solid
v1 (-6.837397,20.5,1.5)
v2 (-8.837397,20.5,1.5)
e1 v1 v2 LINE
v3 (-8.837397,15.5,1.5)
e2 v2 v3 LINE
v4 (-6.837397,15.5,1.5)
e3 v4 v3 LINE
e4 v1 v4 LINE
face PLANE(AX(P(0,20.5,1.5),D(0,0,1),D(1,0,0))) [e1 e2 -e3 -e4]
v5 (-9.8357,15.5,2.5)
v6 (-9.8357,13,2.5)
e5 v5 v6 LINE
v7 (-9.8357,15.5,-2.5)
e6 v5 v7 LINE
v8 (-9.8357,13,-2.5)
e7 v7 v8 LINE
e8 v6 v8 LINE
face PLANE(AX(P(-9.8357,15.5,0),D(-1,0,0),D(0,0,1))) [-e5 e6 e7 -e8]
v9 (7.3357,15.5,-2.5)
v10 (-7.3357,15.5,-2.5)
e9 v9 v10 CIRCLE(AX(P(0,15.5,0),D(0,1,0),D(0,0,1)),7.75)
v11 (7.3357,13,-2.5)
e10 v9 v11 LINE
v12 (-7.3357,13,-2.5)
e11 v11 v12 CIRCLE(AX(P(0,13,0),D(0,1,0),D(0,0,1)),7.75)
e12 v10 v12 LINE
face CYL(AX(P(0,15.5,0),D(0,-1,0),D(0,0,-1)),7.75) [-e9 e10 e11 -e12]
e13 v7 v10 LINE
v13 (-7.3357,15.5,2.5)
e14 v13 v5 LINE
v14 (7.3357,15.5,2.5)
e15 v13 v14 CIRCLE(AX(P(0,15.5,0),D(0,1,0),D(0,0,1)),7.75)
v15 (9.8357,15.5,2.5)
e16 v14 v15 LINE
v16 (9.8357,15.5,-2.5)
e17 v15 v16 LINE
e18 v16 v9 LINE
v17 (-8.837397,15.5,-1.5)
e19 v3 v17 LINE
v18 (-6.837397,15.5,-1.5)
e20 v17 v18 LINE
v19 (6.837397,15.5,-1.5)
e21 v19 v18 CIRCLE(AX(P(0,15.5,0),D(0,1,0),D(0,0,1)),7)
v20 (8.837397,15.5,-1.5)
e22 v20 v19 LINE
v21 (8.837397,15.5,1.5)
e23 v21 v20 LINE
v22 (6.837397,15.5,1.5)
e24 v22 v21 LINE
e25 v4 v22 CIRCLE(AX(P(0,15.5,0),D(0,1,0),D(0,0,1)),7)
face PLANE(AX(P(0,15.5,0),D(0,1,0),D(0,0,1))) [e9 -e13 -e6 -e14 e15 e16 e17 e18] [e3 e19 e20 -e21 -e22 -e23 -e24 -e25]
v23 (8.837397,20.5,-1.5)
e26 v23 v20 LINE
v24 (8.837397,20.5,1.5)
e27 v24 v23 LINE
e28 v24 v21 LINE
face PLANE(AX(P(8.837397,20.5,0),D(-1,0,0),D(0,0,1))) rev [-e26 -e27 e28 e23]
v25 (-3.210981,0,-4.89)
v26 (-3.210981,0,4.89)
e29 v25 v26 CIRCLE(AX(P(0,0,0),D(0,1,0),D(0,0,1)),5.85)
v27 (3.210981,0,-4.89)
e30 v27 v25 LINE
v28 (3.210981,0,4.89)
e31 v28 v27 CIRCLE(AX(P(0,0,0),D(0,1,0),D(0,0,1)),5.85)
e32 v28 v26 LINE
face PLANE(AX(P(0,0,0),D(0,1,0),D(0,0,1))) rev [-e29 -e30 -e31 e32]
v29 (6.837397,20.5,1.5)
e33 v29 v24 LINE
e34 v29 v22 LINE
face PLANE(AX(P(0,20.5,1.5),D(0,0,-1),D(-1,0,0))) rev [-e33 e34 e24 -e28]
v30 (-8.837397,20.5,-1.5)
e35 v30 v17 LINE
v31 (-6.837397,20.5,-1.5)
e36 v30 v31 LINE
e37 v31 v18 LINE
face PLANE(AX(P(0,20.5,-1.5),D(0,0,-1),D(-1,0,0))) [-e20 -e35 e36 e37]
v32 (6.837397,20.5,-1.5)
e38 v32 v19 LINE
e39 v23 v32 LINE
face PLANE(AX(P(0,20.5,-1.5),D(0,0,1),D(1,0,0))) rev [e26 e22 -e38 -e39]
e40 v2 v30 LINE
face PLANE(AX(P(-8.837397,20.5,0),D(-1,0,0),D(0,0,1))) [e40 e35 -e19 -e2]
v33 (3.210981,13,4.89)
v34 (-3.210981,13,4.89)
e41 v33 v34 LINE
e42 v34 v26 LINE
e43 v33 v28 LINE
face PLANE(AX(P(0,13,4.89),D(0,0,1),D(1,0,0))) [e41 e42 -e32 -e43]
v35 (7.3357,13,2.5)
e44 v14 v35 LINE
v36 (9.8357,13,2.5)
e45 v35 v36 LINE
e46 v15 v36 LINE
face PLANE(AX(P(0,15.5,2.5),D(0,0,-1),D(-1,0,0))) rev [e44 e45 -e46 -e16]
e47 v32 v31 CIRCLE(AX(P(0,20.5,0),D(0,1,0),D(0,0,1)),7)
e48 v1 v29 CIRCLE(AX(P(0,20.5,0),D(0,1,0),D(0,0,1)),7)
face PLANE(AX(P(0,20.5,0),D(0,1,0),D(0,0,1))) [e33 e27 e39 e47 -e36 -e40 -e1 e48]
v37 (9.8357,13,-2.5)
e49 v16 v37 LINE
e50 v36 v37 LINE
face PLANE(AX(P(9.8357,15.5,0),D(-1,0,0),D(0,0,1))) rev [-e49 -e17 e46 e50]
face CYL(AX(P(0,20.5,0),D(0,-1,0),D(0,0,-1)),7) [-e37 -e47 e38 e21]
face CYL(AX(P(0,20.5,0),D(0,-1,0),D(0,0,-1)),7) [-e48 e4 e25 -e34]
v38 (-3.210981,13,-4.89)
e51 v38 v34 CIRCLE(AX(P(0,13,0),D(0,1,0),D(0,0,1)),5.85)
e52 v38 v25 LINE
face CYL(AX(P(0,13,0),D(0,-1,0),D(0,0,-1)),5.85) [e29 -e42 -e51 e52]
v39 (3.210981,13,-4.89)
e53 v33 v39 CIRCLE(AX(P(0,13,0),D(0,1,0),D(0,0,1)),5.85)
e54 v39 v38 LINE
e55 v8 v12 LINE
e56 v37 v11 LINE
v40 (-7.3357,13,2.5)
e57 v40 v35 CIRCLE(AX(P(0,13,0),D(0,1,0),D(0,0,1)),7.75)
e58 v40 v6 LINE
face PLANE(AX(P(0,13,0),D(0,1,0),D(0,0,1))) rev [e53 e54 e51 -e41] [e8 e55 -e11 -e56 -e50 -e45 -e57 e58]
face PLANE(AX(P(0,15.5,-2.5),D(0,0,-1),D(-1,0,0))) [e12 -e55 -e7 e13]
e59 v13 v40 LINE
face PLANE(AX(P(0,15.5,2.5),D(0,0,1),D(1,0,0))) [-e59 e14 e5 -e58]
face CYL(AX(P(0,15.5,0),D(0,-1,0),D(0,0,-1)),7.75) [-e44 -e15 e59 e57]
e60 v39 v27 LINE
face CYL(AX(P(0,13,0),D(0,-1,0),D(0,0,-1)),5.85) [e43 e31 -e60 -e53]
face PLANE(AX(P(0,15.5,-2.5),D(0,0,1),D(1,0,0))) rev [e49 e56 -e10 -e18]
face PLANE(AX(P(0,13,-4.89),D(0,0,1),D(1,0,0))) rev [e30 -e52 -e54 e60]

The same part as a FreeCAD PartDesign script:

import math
import FreeCAD as App
import Part
import Sketcher
from FreeCAD import Vector
Q = App.Units.Quantity

doc = App.newDocument("Part")
body = doc.addObject("PartDesign::Body", "Body")

sketch1 = body.newObject("Sketcher::SketchObject", "Sketch")
sketch1.AttachmentSupport = (doc.getObject("XZ_Plane"), [""])
sketch1.MapMode = "FlatFace"
sketch1.addGeometry(Part.ArcOfCircle(Part.Circle(Vector(0, 0, 0), Vector(0, 0, 1), 6), math.radians(-57), math.radians(0)), False)
sketch1.addGeometry(Part.LineSegment(Vector(3, -5, 0), Vector(-3, -5, 0)), False)
sketch1.addGeometry(Part.ArcOfCircle(Part.Circle(Vector(0, 0, 0), Vector(0, 0, 1), 6), math.radians(180), math.radians(237)), False)
sketch1.addGeometry(Part.ArcOfCircle(Part.Circle(Vector(0, 0, 0), Vector(0, 0, 1), 6), math.radians(123), math.radians(180)), False)
sketch1.addGeometry(Part.LineSegment(Vector(-3, 5, 0), Vector(3, 5, 0)), False)
sketch1.addGeometry(Part.ArcOfCircle(Part.Circle(Vector(0, 0, 0), Vector(0, 0, 1), 6), math.radians(0), math.radians(57)), False)
sketch1.addConstraint(Sketcher.Constraint("Coincident", 0, 1, 1, 1))
sketch1.addConstraint(Sketcher.Constraint("Coincident", 1, 2, 2, 2))
sketch1.addConstraint(Sketcher.Constraint("Tangent", 2, 1, 3, 2))
sketch1.addConstraint(Sketcher.Constraint("Coincident", 3, 1, 4, 1))
sketch1.addConstraint(Sketcher.Constraint("Coincident", 4, 2, 5, 2))
sketch1.addConstraint(Sketcher.Constraint("Tangent", 5, 1, 0, 2))
sketch1.addConstraint(Sketcher.Constraint("Horizontal", 1))
sketch1.addConstraint(Sketcher.Constraint("Horizontal", 4))
sketch1.addConstraint(Sketcher.Constraint("Coincident", 0, 3, -1, 1))
sketch1.addConstraint(Sketcher.Constraint("Coincident", 2, 3, -1, 1))
sketch1.addConstraint(Sketcher.Constraint("Equal", 0, 2))
sketch1.addConstraint(Sketcher.Constraint("Equal", 2, 3))
sketch1.addConstraint(Sketcher.Constraint("Equal", 3, 5))
sketch1.addConstraint(Sketcher.Constraint("PointOnObject", 2, 1, -1))
sketch1.addConstraint(Sketcher.Constraint("PointOnObject", 5, 1, -1))
sketch1.addConstraint(Sketcher.Constraint("Vertical", 1, 2, 3, 1))
sketch1.addConstraint(Sketcher.Constraint("Radius", 0, Q("5.85 mm")))
sketch1.addConstraint(Sketcher.Constraint("DistanceY", 0, 1, -1, 1, Q("4.89 mm")))
pad1 = body.newObject("PartDesign::Pad", "Pad")
pad1.Profile = sketch1
pad1.Length = 13
pad1.Reversed = True

sketch2 = body.newObject("Sketcher::SketchObject", "Sketch001")
sketch2.AttachmentSupport = (doc.getObject("XZ_Plane"), [""])
sketch2.MapMode = "FlatFace"
sketch2.AttachmentOffset = App.Placement(Vector(0, 0, -13), App.Rotation())
sketch2.addGeometry(Part.ArcOfCircle(Part.Circle(Vector(0, 0, 0), Vector(0, 0, 1), 7.8), math.radians(-161), math.radians(-90)), False)
sketch2.addGeometry(Part.LineSegment(Vector(-7.3, -2.5, 0), Vector(-9.8, -2.5, 0)), False)
sketch2.addGeometry(Part.LineSegment(Vector(-9.8, -2.5, 0), Vector(-9.8, 2.5, 0)), False)
sketch2.addGeometry(Part.LineSegment(Vector(-9.8, 2.5, 0), Vector(-7.3, 2.5, 0)), False)
sketch2.addGeometry(Part.ArcOfCircle(Part.Circle(Vector(0, 0, 0), Vector(0, 0, 1), 7.8), math.radians(90), math.radians(161)), False)
sketch2.addGeometry(Part.ArcOfCircle(Part.Circle(Vector(0, 0, 0), Vector(0, 0, 1), 7.8), math.radians(19), math.radians(90)), False)
sketch2.addGeometry(Part.LineSegment(Vector(7.3, 2.5, 0), Vector(9.8, 2.5, 0)), False)
sketch2.addGeometry(Part.LineSegment(Vector(9.8, 2.5, 0), Vector(9.8, -2.5, 0)), False)
sketch2.addGeometry(Part.LineSegment(Vector(9.8, -2.5, 0), Vector(7.3, -2.5, 0)), False)
sketch2.addGeometry(Part.ArcOfCircle(Part.Circle(Vector(0, 0, 0), Vector(0, 0, 1), 7.8), math.radians(-90), math.radians(-19)), False)
sketch2.addConstraint(Sketcher.Constraint("Coincident", 0, 1, 1, 1))
sketch2.addConstraint(Sketcher.Constraint("Coincident", 1, 2, 2, 1))
sketch2.addConstraint(Sketcher.Constraint("Coincident", 2, 2, 3, 1))
sketch2.addConstraint(Sketcher.Constraint("Coincident", 3, 2, 4, 2))
sketch2.addConstraint(Sketcher.Constraint("Tangent", 4, 1, 5, 2))
sketch2.addConstraint(Sketcher.Constraint("Coincident", 5, 1, 6, 1))
sketch2.addConstraint(Sketcher.Constraint("Coincident", 6, 2, 7, 1))
sketch2.addConstraint(Sketcher.Constraint("Coincident", 7, 2, 8, 1))
sketch2.addConstraint(Sketcher.Constraint("Coincident", 8, 2, 9, 2))
sketch2.addConstraint(Sketcher.Constraint("Tangent", 9, 1, 0, 2))
sketch2.addConstraint(Sketcher.Constraint("Horizontal", 1))
sketch2.addConstraint(Sketcher.Constraint("Vertical", 2))
sketch2.addConstraint(Sketcher.Constraint("Horizontal", 3))
sketch2.addConstraint(Sketcher.Constraint("Horizontal", 6))
sketch2.addConstraint(Sketcher.Constraint("Vertical", 7))
sketch2.addConstraint(Sketcher.Constraint("Horizontal", 8))
sketch2.addConstraint(Sketcher.Constraint("Coincident", 0, 3, -1, 1))
sketch2.addConstraint(Sketcher.Constraint("Coincident", 4, 3, -1, 1))
sketch2.addConstraint(Sketcher.Constraint("Equal", 0, 4))
sketch2.addConstraint(Sketcher.Constraint("Equal", 4, 5))
sketch2.addConstraint(Sketcher.Constraint("Equal", 5, 9))
sketch2.addConstraint(Sketcher.Constraint("Symmetric", 1, 2, 6, 2, -1, 1))
sketch2.addConstraint(Sketcher.Constraint("PointOnObject", 4, 1, -2))
sketch2.addConstraint(Sketcher.Constraint("PointOnObject", 9, 1, -2))
sketch2.addConstraint(Sketcher.Constraint("Horizontal", 3, 2, 5, 1))
sketch2.addConstraint(Sketcher.Constraint("Horizontal", 1, 2, 7, 2))
sketch2.addConstraint(Sketcher.Constraint("DistanceY", 2, 1, 2, 2, Q("5 mm")))
sketch2.addConstraint(Sketcher.Constraint("Radius", 0, Q("7.75 mm")))
sketch2.addConstraint(Sketcher.Constraint("DistanceX", 1, 2, 1, 1, Q("2.5 mm")))
pad2 = body.newObject("PartDesign::Pad", "Pad001")
pad2.Profile = sketch2
pad2.Length = 2.5
pad2.Reversed = True

sketch3 = body.newObject("Sketcher::SketchObject", "Sketch002")
sketch3.AttachmentSupport = (doc.getObject("XZ_Plane"), [""])
sketch3.MapMode = "FlatFace"
sketch3.AttachmentOffset = App.Placement(Vector(0, 0, -15.5), App.Rotation())
sketch3.addGeometry(Part.LineSegment(Vector(-6.8, -1.5, 0), Vector(-8.8, -1.5, 0)), False)
sketch3.addGeometry(Part.LineSegment(Vector(-8.8, -1.5, 0), Vector(-8.8, 1.5, 0)), False)
sketch3.addGeometry(Part.LineSegment(Vector(-8.8, 1.5, 0), Vector(-6.8, 1.5, 0)), False)
sketch3.addGeometry(Part.ArcOfCircle(Part.Circle(Vector(0, 0, 0), Vector(0, 0, 1), 7), math.radians(12), math.radians(168)), False)
sketch3.addGeometry(Part.LineSegment(Vector(6.8, 1.5, 0), Vector(8.8, 1.5, 0)), False)
sketch3.addGeometry(Part.LineSegment(Vector(8.8, 1.5, 0), Vector(8.8, -1.5, 0)), False)
sketch3.addGeometry(Part.LineSegment(Vector(8.8, -1.5, 0), Vector(6.8, -1.5, 0)), False)
sketch3.addGeometry(Part.ArcOfCircle(Part.Circle(Vector(0, 0, 0), Vector(0, 0, 1), 7), math.radians(-168), math.radians(-12)), False)
sketch3.addConstraint(Sketcher.Constraint("Coincident", 0, 2, 1, 1))
sketch3.addConstraint(Sketcher.Constraint("Coincident", 1, 2, 2, 1))
sketch3.addConstraint(Sketcher.Constraint("Coincident", 2, 2, 3, 2))
sketch3.addConstraint(Sketcher.Constraint("Coincident", 3, 1, 4, 1))
sketch3.addConstraint(Sketcher.Constraint("Coincident", 4, 2, 5, 1))
sketch3.addConstraint(Sketcher.Constraint("Coincident", 5, 2, 6, 1))
sketch3.addConstraint(Sketcher.Constraint("Coincident", 6, 2, 7, 2))
sketch3.addConstraint(Sketcher.Constraint("Coincident", 7, 1, 0, 1))
sketch3.addConstraint(Sketcher.Constraint("Horizontal", 0))
sketch3.addConstraint(Sketcher.Constraint("Vertical", 1))
sketch3.addConstraint(Sketcher.Constraint("Horizontal", 2))
sketch3.addConstraint(Sketcher.Constraint("Horizontal", 4))
sketch3.addConstraint(Sketcher.Constraint("Vertical", 5))
sketch3.addConstraint(Sketcher.Constraint("Horizontal", 6))
sketch3.addConstraint(Sketcher.Constraint("Coincident", 3, 3, -1, 1))
sketch3.addConstraint(Sketcher.Constraint("Coincident", 7, 3, -1, 1))
sketch3.addConstraint(Sketcher.Constraint("Equal", 3, 7))
sketch3.addConstraint(Sketcher.Constraint("Symmetric", 0, 2, 4, 2, -1, 1))
sketch3.addConstraint(Sketcher.Constraint("Horizontal", 2, 2, 3, 1))
sketch3.addConstraint(Sketcher.Constraint("Horizontal", 0, 2, 5, 2))
sketch3.addConstraint(Sketcher.Constraint("Radius", 3, Q("7 mm")))
sketch3.addConstraint(Sketcher.Constraint("DistanceX", 0, 2, 0, 1, Q("2 mm")))
sketch3.addConstraint(Sketcher.Constraint("DistanceY", 1, 1, 1, 2, Q("3 mm")))
pad3 = body.newObject("PartDesign::Pad", "Pad002")
pad3.Profile = sketch3
pad3.Length = 5
pad3.Reversed = True

doc.recompute()
